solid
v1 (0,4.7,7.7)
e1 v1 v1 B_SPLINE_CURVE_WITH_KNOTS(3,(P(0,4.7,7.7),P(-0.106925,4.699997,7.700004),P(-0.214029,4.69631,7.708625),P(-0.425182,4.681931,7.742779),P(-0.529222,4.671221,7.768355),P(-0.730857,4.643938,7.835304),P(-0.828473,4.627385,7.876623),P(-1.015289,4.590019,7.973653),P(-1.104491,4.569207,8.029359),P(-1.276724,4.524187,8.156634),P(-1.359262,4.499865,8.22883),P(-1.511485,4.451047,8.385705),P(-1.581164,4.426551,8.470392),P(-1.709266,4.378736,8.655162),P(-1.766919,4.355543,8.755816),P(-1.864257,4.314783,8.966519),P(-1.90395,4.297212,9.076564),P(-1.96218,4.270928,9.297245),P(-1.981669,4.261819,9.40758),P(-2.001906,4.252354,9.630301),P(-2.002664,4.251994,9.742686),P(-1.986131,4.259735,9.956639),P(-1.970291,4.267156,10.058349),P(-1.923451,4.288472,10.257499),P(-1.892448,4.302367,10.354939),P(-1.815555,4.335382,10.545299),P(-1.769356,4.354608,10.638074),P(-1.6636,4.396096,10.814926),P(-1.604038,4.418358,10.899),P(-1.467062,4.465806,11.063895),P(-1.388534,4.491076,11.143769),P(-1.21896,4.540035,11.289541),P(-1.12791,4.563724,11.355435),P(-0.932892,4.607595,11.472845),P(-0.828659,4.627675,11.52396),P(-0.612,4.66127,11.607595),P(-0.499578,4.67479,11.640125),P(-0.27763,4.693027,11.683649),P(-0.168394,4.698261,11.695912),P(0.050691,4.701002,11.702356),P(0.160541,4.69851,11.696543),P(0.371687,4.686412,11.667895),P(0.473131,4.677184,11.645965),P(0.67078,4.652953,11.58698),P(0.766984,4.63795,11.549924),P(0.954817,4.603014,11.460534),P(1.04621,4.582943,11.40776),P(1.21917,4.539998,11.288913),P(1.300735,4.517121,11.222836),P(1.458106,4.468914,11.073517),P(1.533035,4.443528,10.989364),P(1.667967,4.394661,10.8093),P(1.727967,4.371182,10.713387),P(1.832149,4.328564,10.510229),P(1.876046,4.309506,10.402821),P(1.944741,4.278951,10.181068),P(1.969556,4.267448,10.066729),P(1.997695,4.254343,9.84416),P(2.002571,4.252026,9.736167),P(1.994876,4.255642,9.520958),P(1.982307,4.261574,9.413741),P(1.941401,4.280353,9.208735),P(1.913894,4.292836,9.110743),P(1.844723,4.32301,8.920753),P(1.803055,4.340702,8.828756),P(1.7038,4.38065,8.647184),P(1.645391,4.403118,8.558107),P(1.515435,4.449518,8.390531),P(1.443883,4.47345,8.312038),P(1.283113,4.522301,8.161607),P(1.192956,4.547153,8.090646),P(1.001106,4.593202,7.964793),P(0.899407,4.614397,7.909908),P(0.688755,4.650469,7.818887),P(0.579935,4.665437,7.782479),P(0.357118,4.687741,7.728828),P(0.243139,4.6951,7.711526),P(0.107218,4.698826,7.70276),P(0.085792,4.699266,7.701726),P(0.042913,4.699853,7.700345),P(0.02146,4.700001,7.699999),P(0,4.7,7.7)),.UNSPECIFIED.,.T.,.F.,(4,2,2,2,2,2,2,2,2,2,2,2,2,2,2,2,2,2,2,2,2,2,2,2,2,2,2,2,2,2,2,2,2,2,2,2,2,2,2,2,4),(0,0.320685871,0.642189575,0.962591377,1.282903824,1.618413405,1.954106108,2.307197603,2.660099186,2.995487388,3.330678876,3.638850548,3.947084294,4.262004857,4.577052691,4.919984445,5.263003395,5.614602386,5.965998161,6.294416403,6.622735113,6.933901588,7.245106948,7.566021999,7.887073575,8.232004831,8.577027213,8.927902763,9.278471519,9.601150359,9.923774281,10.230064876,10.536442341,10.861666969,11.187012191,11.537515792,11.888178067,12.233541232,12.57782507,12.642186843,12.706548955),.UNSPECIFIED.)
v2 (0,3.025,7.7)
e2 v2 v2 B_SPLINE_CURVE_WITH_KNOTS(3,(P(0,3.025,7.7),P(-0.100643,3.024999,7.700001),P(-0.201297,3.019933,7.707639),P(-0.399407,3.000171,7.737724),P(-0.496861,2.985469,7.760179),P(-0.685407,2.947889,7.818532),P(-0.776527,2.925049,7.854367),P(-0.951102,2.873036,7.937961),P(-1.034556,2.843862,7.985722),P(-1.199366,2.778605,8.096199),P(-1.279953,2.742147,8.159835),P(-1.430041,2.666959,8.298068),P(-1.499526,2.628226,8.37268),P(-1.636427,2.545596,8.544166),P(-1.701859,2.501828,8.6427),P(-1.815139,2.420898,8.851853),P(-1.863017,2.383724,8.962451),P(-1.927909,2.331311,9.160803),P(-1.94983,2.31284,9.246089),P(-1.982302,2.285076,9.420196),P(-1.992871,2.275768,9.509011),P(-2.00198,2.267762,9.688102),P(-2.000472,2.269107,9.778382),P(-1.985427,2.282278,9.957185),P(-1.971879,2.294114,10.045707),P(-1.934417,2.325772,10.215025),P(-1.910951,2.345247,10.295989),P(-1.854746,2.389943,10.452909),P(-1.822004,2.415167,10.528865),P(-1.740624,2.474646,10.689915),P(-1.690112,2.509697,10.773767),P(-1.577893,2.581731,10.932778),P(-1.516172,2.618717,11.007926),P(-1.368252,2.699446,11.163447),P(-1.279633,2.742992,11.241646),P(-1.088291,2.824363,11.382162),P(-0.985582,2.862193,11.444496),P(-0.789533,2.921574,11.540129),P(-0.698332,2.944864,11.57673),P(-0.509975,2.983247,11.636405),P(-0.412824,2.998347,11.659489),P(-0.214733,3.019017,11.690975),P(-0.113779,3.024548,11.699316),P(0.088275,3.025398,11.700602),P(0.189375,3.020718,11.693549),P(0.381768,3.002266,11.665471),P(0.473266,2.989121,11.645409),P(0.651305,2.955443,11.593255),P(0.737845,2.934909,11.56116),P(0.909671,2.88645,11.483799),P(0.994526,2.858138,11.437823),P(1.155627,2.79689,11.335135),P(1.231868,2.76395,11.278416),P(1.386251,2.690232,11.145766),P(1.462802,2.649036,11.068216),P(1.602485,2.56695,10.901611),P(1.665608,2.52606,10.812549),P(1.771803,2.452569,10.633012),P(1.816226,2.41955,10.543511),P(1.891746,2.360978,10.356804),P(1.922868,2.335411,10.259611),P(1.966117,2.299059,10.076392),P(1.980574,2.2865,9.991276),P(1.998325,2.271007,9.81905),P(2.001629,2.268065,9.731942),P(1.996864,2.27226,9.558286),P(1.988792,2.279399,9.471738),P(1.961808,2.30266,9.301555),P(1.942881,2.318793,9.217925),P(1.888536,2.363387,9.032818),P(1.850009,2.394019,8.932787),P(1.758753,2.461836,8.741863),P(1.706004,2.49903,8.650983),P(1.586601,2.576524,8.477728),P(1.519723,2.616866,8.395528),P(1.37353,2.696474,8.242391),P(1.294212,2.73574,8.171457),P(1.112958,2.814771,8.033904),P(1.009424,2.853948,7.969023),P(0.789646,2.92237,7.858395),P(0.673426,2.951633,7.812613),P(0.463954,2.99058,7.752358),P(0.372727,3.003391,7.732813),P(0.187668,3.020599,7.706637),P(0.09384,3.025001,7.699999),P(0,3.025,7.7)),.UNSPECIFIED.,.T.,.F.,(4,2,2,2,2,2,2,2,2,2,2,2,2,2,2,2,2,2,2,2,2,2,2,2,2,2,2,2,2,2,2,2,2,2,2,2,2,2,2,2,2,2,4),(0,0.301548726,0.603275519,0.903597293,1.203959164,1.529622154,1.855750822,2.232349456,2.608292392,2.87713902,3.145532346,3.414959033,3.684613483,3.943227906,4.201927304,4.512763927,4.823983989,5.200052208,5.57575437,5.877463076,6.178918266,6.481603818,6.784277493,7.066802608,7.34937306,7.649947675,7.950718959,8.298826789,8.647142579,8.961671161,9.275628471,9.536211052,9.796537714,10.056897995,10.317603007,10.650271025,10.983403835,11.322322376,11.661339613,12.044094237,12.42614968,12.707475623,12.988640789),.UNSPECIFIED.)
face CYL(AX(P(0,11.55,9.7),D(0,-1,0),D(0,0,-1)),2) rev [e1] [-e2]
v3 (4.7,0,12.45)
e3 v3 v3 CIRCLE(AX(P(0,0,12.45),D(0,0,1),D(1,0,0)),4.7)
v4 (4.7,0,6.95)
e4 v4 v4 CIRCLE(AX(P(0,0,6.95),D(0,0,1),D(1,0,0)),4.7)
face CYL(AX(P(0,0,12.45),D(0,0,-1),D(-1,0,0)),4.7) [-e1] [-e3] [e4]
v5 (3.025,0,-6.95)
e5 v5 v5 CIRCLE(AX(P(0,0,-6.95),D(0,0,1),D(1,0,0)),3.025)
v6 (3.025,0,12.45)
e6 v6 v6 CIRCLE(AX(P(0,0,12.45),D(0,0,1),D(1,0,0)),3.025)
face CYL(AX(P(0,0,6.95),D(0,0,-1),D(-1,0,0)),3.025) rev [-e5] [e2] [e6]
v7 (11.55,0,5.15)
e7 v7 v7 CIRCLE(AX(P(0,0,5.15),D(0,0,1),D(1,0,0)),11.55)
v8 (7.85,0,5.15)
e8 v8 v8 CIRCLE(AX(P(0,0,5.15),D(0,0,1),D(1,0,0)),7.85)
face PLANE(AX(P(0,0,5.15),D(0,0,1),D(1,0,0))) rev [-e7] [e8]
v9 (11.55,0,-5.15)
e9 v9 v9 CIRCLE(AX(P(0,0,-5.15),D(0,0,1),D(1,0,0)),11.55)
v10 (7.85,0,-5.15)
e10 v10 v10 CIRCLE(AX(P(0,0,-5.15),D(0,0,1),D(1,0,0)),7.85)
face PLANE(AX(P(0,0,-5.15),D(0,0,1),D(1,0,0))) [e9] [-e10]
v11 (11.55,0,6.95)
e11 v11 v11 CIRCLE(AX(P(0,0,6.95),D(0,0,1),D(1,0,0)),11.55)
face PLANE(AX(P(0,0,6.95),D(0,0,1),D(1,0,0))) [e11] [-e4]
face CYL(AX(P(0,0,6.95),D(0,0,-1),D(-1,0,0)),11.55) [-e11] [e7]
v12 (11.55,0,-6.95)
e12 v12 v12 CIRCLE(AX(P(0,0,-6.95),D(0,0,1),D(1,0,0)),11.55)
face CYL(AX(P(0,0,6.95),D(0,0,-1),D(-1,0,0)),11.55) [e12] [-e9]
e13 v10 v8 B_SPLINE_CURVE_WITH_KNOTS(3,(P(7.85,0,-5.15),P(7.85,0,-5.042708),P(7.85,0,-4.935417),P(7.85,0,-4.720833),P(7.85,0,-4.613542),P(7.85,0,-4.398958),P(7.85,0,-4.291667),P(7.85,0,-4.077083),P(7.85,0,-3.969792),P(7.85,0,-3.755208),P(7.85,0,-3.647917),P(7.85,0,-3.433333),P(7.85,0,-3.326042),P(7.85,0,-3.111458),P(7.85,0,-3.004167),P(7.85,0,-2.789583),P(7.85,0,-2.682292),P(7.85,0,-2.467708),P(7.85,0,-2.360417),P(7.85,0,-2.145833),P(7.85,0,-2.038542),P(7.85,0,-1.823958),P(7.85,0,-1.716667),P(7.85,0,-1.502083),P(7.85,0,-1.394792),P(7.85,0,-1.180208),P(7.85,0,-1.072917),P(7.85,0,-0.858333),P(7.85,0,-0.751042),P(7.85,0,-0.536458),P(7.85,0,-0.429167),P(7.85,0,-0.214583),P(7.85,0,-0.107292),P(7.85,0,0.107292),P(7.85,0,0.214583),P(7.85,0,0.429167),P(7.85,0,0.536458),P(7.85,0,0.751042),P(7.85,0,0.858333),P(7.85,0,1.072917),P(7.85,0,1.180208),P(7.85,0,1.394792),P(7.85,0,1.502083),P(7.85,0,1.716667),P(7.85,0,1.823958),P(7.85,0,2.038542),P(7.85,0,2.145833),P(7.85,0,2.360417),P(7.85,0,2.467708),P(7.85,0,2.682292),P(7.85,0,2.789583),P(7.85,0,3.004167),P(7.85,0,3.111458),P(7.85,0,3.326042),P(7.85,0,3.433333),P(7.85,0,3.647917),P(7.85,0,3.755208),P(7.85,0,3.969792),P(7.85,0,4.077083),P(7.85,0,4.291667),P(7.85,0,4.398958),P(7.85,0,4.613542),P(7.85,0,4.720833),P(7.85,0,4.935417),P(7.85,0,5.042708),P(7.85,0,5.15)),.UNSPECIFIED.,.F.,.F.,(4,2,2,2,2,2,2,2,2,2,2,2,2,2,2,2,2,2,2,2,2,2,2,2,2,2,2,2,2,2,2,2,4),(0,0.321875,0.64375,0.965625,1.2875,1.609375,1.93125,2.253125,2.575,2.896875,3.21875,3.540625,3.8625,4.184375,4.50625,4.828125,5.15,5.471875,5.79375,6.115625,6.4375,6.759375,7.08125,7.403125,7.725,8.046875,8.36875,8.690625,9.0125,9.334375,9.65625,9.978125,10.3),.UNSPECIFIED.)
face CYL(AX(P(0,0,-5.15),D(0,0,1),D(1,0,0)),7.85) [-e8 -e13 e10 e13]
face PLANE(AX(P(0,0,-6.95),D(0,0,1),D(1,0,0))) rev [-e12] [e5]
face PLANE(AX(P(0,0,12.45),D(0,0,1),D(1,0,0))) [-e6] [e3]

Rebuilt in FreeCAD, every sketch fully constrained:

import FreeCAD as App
import Part
import Sketcher
from FreeCAD import Vector

doc = App.newDocument("Part")
body = doc.addObject("PartDesign::Body", "Body")

sketch1 = body.newObject("Sketcher::SketchObject", "Sketch")
sketch1.AttachmentSupport = (doc.getObject("XY_Plane"), [""])
sketch1.MapMode = "FlatFace"
sketch1.addGeometry([
    Part.Circle(Vector(0, 0, 0), Vector(0, 0, 1), 11.55),
    Part.Circle(Vector(0, 0, 0), Vector(0, 0, 1), 3.025),
], False)
sketch1.addConstraint([
    Sketcher.Constraint("Coincident", 0, 3, -1, 1),
    Sketcher.Constraint("Coincident", 1, 3, -1, 1),
    Sketcher.Constraint("Diameter", 0, 23.1),
    Sketcher.Constraint("Diameter", 1, 6.05),
])
pad1 = body.newObject("PartDesign::Pad", "Pad")
pad1.Profile = sketch1
pad1.Length = 13.9
pad1.Midplane = True

sketch2 = body.newObject("Sketcher::SketchObject", "Sketch001")
sketch2.AttachmentSupport = (doc.getObject("XY_Plane"), [""])
sketch2.MapMode = "FlatFace"
sketch2.addGeometry([
    Part.Circle(Vector(0, 0, 0), Vector(0, 0, 1), 13.660408),
    Part.Circle(Vector(0, 0, 0), Vector(0, 0, 1), 7.85),
], False)
sketch2.addConstraint([
    Sketcher.Constraint("Coincident", 0, 3, -1, 1),
    Sketcher.Constraint("Coincident", 1, 3, -1, 1),
    Sketcher.Constraint("Diameter", 1, 15.7),
    Sketcher.Constraint("Diameter", 0, 27.320815),
])
pocket1 = body.newObject("PartDesign::Pocket", "Pocket")
pocket1.Profile = sketch2
pocket1.Length = 10.3
pocket1.Midplane = True

sketch3 = body.newObject("Sketcher::SketchObject", "Sketch002")
sketch3.AttachmentSupport = (doc.getObject("XY_Plane"), [""])
sketch3.MapMode = "FlatFace"
sketch3.AttachmentOffset = App.Placement(Vector(0, 0, 6.95), App.Rotation())
sketch3.addGeometry([
    Part.Circle(Vector(0, 0, 0), Vector(0, 0, 1), 4.7),
    Part.Circle(Vector(0, 0, 0), Vector(0, 0, 1), 3.025),
], False)
sketch3.addConstraint([
    Sketcher.Constraint("Coincident", 0, 3, -1, 1),
    Sketcher.Constraint("Coincident", 1, 3, -1, 1),
    Sketcher.Constraint("Diameter", 0, 9.4),
    Sketcher.Constraint("Diameter", 1, 6.05),
])
pad2 = body.newObject("PartDesign::Pad", "Pad001")
pad2.Profile = sketch3
pad2.Length = 5.5

sketch4 = body.newObject("Sketcher::SketchObject", "Sketch003")
sketch4.AttachmentSupport = (doc.getObject("XZ_Plane"), [""])
sketch4.MapMode = "FlatFace"
sketch4.addGeometry(Part.Circle(Vector(0, 9.7, 0), Vector(0, 0, 1), 2), False)
sketch4.addConstraint([
    Sketcher.Constraint("PointOnObject", 0, 3, -2),
    Sketcher.Constraint("Diameter", 0, 4.0),
    Sketcher.Constraint("DistanceY", -1, 1, 0, 3, 9.7),
])
pocket2 = body.newObject("PartDesign::Pocket", "Pocket001")
pocket2.Profile = sketch4
pocket2.Type = "ThroughAll"

doc.recompute()
